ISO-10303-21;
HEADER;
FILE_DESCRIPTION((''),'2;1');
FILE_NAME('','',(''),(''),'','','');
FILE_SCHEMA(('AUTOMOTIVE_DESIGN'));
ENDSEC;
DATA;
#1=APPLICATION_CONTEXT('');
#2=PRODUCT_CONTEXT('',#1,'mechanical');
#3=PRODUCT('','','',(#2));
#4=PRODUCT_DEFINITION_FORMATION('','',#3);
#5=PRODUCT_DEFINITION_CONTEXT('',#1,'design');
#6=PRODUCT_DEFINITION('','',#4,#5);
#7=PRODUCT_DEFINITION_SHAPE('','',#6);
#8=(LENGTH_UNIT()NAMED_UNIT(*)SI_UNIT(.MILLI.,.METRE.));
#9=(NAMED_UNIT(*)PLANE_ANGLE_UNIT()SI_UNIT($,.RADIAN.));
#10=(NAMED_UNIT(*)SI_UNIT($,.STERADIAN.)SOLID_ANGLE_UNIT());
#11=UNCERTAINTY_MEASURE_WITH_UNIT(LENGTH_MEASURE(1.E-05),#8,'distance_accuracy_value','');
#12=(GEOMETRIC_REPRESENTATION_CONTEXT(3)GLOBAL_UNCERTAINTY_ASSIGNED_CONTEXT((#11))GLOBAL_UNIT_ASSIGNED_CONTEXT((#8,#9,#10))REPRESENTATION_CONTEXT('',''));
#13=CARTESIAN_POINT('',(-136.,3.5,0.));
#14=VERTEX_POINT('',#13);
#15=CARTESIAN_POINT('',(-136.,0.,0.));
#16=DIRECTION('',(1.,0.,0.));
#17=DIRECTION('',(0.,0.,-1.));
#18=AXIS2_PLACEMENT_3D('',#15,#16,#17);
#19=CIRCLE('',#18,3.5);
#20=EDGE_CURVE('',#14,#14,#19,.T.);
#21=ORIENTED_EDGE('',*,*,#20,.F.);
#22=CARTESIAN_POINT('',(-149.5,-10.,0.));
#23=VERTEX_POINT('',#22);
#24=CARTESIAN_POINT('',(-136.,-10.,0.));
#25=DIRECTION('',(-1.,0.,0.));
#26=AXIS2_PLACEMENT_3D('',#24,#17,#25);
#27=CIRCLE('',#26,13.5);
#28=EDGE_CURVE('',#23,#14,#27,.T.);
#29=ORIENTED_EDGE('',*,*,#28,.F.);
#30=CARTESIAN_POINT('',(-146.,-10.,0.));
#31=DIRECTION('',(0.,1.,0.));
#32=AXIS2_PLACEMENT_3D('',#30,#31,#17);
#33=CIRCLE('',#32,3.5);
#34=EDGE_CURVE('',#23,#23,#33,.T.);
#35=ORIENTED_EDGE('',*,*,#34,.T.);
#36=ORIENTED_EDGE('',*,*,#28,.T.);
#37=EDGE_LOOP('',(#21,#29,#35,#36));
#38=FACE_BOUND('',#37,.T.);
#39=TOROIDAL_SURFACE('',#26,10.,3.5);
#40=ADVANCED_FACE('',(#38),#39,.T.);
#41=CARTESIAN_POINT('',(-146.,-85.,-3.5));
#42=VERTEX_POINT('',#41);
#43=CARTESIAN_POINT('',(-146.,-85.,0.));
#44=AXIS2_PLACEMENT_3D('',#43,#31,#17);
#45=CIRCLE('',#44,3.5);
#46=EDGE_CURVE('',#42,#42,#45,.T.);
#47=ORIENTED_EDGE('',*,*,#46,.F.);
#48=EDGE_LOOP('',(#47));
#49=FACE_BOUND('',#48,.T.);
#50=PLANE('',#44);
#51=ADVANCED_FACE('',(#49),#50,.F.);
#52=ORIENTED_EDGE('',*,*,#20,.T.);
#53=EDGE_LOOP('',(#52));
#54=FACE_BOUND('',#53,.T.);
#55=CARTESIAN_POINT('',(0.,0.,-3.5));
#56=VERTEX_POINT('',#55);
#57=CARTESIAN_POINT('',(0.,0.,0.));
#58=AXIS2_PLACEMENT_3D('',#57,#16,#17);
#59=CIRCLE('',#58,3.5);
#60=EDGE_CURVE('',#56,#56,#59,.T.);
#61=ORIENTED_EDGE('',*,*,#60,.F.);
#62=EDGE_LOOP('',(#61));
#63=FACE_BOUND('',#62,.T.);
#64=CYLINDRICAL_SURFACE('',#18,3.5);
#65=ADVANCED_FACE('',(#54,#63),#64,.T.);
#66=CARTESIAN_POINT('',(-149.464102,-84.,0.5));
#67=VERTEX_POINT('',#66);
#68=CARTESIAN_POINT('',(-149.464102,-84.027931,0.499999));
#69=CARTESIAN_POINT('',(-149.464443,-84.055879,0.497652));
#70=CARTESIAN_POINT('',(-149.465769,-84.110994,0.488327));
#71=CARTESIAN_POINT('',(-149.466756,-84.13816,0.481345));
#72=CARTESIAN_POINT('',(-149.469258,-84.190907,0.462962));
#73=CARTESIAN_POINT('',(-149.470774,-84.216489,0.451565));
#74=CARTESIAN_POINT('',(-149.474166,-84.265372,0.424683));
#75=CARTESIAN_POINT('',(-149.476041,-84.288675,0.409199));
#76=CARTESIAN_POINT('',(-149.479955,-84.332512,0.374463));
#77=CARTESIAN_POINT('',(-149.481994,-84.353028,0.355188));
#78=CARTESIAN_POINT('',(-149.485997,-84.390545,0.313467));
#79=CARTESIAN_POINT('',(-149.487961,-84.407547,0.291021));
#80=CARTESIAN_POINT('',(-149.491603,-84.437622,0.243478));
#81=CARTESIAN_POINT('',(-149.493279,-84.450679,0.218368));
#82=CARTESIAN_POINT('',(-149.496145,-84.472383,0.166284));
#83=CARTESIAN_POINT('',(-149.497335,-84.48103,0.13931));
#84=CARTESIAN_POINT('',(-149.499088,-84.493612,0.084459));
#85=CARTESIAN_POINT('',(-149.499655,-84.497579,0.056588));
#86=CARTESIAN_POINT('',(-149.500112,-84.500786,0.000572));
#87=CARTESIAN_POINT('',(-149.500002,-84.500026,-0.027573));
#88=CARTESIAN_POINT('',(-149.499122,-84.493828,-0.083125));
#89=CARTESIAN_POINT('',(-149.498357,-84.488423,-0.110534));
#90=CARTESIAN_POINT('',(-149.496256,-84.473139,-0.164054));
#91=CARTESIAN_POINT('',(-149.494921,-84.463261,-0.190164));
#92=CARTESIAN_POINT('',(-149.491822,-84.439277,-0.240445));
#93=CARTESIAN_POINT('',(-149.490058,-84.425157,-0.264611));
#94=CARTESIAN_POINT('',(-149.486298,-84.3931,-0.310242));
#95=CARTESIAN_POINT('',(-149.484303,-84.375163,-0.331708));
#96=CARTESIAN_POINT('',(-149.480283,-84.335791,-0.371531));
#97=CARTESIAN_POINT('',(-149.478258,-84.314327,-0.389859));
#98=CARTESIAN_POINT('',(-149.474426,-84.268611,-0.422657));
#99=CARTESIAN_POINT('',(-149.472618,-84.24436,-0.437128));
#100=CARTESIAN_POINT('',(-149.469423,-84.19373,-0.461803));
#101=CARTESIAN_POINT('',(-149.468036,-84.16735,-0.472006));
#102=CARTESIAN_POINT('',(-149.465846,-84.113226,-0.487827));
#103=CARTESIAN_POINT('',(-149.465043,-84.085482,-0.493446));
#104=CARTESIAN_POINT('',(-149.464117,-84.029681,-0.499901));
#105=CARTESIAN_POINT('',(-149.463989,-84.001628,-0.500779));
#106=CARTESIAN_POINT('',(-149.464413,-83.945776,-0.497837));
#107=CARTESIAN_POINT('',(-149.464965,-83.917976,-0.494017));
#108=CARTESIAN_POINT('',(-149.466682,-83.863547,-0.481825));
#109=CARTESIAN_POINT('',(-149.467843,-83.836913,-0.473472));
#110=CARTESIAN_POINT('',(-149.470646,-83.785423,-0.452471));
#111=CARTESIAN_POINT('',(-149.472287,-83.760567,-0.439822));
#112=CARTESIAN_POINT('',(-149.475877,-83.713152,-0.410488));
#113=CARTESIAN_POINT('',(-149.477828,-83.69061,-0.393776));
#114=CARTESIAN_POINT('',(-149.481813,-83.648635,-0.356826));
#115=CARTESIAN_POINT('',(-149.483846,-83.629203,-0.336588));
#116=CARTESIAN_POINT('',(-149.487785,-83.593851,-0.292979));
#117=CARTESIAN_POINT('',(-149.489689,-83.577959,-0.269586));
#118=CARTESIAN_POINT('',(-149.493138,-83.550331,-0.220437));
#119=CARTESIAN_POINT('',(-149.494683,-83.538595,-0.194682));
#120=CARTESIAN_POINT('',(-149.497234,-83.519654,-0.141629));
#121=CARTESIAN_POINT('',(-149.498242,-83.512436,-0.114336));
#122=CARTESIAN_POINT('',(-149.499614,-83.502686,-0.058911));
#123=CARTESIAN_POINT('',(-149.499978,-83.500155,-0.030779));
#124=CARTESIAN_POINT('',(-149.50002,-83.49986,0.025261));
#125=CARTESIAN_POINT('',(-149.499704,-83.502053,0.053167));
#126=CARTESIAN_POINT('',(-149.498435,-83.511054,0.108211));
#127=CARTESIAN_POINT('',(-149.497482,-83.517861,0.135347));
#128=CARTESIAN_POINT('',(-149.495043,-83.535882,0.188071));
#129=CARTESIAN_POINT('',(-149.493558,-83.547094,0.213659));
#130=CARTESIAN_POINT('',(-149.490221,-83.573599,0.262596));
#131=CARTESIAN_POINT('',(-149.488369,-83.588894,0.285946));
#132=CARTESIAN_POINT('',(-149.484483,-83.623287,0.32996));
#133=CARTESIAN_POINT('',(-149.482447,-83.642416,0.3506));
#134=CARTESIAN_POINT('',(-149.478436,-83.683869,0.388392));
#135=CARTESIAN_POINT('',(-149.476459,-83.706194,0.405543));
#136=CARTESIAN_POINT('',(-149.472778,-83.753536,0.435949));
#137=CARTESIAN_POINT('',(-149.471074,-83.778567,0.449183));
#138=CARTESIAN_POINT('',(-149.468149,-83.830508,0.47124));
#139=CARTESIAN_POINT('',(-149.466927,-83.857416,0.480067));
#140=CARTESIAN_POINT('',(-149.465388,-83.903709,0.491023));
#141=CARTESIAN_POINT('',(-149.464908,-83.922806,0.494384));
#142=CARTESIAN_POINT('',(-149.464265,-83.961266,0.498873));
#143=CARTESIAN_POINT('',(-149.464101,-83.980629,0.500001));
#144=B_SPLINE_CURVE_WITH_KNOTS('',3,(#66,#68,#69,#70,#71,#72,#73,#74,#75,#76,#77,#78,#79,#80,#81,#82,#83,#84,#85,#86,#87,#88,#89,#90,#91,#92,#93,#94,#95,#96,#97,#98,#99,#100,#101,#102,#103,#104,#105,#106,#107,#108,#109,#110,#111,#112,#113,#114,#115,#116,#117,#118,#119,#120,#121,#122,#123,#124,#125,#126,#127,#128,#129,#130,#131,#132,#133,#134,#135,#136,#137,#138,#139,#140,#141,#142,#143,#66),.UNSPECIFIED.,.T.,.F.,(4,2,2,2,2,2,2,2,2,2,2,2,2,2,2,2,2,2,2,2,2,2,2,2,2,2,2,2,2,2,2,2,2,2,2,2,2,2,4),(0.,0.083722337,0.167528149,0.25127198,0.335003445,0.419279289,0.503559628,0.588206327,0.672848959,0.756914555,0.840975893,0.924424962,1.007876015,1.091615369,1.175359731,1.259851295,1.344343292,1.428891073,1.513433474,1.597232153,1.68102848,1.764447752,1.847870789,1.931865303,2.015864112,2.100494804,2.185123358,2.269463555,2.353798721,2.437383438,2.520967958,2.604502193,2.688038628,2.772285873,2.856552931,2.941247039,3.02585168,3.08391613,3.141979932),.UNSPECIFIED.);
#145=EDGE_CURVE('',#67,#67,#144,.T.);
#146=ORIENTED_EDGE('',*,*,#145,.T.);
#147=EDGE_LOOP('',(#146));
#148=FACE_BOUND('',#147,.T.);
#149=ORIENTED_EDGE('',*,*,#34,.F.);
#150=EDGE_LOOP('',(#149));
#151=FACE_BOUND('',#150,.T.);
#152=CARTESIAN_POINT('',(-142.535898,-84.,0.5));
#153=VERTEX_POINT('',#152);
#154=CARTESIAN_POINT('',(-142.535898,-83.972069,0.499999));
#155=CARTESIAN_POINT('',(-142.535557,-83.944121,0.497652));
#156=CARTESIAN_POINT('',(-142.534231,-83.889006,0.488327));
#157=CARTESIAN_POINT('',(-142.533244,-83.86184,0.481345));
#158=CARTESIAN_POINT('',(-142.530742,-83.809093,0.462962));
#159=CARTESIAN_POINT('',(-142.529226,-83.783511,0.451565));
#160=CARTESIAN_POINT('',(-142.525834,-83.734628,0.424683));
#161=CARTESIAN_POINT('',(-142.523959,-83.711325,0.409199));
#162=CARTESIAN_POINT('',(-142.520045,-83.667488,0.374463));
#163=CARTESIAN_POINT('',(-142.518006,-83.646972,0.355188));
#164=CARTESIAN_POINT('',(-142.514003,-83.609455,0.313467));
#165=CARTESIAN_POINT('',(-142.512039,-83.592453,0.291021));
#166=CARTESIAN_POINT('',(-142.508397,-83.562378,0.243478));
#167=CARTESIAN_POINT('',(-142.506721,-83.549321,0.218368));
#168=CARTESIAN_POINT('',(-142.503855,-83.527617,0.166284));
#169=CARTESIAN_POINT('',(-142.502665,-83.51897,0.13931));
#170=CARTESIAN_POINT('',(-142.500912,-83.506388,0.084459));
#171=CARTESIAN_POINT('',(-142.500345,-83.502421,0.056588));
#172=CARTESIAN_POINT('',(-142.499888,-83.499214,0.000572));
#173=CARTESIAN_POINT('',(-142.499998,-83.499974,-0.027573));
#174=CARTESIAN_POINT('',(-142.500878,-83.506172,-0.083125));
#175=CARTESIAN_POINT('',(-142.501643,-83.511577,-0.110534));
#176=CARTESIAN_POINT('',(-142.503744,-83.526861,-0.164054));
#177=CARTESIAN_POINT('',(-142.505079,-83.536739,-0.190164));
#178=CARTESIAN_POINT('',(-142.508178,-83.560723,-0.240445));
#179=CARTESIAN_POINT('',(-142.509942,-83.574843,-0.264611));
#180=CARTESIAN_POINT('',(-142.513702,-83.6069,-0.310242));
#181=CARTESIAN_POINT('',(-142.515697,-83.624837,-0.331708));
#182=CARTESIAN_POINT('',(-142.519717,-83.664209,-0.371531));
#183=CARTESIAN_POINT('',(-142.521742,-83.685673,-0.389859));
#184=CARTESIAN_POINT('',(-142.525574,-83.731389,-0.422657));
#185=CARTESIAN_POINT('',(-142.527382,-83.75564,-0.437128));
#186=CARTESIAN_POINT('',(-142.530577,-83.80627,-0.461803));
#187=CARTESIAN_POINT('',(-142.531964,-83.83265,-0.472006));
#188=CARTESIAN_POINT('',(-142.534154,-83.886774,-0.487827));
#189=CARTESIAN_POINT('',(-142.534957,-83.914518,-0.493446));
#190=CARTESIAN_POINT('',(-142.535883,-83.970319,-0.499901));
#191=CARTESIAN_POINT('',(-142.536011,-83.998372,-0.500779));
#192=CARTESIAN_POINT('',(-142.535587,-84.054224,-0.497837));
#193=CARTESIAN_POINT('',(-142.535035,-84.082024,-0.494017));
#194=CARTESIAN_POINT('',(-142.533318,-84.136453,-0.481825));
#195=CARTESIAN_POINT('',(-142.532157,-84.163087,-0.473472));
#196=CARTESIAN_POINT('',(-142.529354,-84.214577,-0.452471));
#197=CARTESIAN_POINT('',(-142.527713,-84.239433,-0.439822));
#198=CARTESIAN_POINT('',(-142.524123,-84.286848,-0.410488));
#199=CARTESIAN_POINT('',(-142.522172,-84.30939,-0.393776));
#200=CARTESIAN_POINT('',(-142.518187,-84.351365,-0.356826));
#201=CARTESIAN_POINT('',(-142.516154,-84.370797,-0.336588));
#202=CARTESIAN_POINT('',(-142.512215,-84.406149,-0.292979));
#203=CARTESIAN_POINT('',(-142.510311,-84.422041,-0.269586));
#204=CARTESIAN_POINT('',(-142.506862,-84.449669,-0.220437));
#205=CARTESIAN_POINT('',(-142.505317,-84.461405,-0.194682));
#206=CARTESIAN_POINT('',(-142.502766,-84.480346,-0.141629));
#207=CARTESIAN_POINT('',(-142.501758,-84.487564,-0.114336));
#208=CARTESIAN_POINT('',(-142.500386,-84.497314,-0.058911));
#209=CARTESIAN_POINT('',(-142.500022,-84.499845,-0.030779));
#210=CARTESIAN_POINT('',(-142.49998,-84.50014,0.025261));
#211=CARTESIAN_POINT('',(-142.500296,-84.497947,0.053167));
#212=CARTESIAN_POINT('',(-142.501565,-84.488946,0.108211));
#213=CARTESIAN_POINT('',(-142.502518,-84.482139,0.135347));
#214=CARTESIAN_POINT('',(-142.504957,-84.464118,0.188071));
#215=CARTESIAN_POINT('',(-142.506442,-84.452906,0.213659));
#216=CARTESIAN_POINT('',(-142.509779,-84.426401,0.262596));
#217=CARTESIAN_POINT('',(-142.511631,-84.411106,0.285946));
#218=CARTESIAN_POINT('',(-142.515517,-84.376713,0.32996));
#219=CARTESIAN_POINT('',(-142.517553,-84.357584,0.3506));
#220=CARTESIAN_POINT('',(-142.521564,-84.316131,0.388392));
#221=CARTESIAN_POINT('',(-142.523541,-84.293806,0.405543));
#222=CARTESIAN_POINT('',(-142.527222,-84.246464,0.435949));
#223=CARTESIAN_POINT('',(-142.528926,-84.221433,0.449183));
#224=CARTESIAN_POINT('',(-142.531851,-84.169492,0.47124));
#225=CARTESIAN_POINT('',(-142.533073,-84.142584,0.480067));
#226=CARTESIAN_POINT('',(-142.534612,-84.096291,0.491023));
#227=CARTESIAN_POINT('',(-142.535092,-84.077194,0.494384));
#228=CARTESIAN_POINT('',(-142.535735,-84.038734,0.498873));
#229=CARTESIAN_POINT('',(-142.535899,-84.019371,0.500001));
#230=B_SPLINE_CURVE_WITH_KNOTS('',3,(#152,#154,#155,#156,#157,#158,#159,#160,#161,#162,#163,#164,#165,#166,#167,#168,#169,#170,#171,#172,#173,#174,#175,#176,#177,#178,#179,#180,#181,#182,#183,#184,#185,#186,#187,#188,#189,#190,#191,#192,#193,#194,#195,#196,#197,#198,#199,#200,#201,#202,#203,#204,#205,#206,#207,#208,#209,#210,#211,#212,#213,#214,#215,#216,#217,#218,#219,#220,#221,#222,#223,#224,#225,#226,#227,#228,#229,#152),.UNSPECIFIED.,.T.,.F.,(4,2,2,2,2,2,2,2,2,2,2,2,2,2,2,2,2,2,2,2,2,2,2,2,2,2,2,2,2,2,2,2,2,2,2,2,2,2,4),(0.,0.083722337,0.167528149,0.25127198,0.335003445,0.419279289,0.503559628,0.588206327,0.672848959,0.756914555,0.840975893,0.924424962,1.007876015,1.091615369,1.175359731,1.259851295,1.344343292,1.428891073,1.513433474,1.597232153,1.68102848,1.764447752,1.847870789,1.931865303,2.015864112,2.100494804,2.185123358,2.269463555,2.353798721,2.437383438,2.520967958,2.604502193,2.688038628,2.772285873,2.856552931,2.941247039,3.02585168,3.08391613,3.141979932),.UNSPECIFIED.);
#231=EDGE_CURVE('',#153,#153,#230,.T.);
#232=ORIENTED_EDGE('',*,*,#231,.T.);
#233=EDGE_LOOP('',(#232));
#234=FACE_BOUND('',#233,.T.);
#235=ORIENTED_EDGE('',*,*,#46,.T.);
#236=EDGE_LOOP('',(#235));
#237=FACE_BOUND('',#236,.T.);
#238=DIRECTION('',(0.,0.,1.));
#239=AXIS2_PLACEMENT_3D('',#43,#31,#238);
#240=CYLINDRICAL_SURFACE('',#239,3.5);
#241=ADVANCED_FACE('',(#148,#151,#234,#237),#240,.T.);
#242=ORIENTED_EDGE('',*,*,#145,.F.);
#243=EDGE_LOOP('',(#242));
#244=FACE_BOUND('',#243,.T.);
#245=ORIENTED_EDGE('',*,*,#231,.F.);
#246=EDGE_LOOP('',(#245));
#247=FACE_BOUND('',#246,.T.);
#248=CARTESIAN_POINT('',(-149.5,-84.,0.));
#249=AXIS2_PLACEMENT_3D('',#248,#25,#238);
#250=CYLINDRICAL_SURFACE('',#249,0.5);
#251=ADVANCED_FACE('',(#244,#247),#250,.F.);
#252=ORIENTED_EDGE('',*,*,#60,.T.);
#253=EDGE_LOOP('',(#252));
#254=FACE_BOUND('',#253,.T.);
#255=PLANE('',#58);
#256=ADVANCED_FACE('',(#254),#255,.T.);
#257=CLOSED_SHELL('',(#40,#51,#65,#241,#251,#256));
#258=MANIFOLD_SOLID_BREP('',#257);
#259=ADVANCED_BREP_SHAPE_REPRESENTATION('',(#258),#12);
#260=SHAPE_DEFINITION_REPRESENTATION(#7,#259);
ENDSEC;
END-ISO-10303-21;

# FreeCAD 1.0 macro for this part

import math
import FreeCAD as App
import Part
import Sketcher
from FreeCAD import Vector
Q = App.Units.Quantity

doc = App.newDocument("Part")
body = doc.addObject("PartDesign::Body", "Body")

# Sketch on YZ plane
sketch1 = body.newObject("Sketcher::SketchObject", "Sketch")
sketch1.AttachmentSupport = (doc.getObject("YZ_Plane"), [""])
sketch1.MapMode = "FlatFace"
sketch1.addGeometry(Part.Circle(Vector(0, 0, 0), Vector(0, 0, 1), 3.5), False)
sketch1.addConstraint(Sketcher.Constraint("Coincident", 0, 3, -1, 1))
sketch1.addConstraint(Sketcher.Constraint("Diameter", 0, Q("7 mm")))

# Sketch on XY plane
sketch2 = body.newObject("Sketcher::SketchObject", "Sketch001")
sketch2.AttachmentSupport = (doc.getObject("XY_Plane"), [""])
sketch2.MapMode = "FlatFace"
sketch2.addGeometry(Part.LineSegment(Vector(0, 0, 0), Vector(-136, 0, 0)), False)
sketch2.addGeometry(Part.ArcOfCircle(Part.Circle(Vector(-136, -10, 0), Vector(0, 0, 1), 10), math.radians(90), math.radians(180)), False)
sketch2.addGeometry(Part.LineSegment(Vector(-146, -10, 0), Vector(-146, -85, 0)), False)
sketch2.addConstraint(Sketcher.Constraint("Tangent", 0, 2, 1, 1))
sketch2.addConstraint(Sketcher.Constraint("Tangent", 1, 2, 2, 1))
sketch2.addConstraint(Sketcher.Constraint("Horizontal", 0))
sketch2.addConstraint(Sketcher.Constraint("Vertical", 2))
sketch2.addConstraint(Sketcher.Constraint("Coincident", 0, 1, -1, 1))
sketch2.addConstraint(Sketcher.Constraint("Radius", 1, Q("10 mm")))
sketch2.addConstraint(Sketcher.Constraint("DistanceX", 0, 2, 0, 1, Q("136 mm")))
sketch2.addConstraint(Sketcher.Constraint("DistanceY", 2, 2, 2, 1, Q("75 mm")))
doc.recompute()

additivepipe = body.newObject("PartDesign::AdditivePipe", "AdditivePipe")
additivepipe.Profile = sketch1
additivepipe.Spine = (sketch2, ["Edge1", "Edge2", "Edge3"])

# Sketch on YZ plane
sketch3 = body.newObject("Sketcher::SketchObject", "Sketch002")
sketch3.AttachmentSupport = (doc.getObject("YZ_Plane"), [""])
sketch3.MapMode = "FlatFace"
sketch3.AttachmentOffset = App.Placement(Vector(0, 0, -150), App.Rotation())
sketch3.addGeometry(Part.Circle(Vector(-84, 0, 0), Vector(0, 0, 1), 0.5), False)
sketch3.addConstraint(Sketcher.Constraint("PointOnObject", 0, 3, -1))
sketch3.addConstraint(Sketcher.Constraint("Diameter", 0, Q("1 mm")))
sketch3.addConstraint(Sketcher.Constraint("DistanceX", 0, 3, -1, 1, Q("84 mm")))
pocket1 = body.newObject("PartDesign::Pocket", "Pocket")
pocket1.Profile = sketch3
pocket1.Type = "ThroughAll"
pocket1.Midplane = True

doc.recompute()
